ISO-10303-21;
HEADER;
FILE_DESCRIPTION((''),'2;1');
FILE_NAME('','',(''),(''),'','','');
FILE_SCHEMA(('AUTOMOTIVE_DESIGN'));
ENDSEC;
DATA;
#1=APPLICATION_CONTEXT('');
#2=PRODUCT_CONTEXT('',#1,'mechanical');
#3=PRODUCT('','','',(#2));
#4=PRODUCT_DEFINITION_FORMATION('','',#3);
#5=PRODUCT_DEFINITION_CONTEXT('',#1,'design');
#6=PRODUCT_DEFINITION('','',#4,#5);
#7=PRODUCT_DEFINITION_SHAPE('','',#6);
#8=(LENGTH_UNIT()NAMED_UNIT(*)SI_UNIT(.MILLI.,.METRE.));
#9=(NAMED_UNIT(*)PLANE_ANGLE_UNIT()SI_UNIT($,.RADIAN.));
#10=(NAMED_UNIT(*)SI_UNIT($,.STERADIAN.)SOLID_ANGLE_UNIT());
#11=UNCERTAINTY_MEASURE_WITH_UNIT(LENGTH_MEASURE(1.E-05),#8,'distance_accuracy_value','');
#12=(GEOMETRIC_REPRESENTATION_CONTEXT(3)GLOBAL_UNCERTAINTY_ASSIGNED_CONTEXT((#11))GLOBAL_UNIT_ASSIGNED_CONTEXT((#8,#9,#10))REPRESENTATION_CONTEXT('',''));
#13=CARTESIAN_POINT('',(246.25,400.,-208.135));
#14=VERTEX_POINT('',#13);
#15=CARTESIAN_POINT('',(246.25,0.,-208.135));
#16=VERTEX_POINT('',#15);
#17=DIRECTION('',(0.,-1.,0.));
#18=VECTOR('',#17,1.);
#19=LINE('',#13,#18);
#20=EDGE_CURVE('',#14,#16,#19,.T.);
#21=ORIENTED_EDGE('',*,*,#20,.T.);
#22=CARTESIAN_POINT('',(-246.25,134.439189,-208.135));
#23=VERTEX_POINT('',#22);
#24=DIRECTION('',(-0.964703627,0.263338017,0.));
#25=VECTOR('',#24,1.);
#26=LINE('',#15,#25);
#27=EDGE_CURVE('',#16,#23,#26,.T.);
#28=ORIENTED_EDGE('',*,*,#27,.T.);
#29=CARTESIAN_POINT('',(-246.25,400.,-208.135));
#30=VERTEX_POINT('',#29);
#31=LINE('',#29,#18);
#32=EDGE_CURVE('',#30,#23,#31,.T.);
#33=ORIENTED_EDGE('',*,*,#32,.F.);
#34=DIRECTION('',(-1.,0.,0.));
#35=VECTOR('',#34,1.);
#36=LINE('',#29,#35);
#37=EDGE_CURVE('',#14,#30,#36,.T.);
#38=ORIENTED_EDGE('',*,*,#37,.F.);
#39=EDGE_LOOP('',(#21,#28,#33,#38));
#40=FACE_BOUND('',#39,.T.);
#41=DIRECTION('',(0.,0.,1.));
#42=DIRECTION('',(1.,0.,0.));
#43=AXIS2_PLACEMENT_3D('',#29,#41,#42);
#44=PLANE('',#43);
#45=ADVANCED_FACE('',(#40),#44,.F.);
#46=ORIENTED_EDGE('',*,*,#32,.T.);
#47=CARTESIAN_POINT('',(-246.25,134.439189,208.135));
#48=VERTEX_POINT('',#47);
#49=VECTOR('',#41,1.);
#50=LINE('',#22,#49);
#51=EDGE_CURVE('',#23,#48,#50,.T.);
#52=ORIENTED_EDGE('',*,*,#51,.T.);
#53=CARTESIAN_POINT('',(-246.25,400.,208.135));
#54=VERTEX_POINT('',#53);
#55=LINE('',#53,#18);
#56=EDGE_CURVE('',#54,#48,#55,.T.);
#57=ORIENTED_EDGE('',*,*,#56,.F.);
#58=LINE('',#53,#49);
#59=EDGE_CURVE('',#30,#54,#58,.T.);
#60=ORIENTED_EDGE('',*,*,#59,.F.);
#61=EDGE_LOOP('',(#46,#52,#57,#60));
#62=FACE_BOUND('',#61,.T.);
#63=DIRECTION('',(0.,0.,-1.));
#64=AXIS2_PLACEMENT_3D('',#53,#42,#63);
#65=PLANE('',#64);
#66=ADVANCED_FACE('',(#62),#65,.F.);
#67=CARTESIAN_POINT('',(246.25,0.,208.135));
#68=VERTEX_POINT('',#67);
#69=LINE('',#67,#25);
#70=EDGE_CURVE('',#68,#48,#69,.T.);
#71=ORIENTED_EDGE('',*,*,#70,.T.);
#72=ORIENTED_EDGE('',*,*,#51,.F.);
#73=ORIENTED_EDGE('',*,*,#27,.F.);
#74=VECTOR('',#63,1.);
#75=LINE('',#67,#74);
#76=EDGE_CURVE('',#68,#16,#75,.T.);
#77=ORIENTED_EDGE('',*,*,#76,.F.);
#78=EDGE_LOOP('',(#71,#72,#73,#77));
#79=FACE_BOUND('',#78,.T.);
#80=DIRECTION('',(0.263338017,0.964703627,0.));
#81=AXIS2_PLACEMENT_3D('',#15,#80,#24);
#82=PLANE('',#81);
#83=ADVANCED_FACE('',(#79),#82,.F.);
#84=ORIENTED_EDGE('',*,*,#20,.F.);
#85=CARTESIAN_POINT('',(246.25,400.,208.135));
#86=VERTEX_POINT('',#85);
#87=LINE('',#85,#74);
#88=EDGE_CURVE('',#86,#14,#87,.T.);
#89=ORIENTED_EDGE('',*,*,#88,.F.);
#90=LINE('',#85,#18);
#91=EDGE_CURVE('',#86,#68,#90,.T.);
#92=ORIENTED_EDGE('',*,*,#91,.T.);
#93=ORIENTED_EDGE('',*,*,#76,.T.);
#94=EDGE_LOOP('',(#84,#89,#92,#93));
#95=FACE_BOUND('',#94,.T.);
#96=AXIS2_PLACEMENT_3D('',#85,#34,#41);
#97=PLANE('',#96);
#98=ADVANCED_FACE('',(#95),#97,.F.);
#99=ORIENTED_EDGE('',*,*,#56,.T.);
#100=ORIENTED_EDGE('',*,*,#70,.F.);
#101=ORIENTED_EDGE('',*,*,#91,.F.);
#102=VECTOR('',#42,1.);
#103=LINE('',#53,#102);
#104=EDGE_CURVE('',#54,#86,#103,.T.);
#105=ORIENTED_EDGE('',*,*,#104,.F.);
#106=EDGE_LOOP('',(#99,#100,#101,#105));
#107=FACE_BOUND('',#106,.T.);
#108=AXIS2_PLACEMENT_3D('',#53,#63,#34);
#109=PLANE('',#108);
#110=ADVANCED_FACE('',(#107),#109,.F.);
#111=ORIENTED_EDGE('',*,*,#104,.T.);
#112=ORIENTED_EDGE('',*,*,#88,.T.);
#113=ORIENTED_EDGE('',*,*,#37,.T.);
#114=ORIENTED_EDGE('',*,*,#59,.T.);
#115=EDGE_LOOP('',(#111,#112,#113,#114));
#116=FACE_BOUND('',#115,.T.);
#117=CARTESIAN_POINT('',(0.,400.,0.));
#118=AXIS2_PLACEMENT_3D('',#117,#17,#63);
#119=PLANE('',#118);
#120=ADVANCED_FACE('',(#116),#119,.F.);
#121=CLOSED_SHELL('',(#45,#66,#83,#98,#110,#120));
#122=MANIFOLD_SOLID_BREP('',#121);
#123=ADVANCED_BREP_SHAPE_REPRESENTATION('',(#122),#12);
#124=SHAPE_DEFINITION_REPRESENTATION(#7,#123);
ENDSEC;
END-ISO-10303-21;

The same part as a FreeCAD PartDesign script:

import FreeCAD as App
import Part
import Sketcher
from FreeCAD import Vector

doc = App.newDocument("Part")
body = doc.addObject("PartDesign::Body", "Body")

# Sketch on XZ plane
sketch1 = doc.addObject("Sketcher::SketchObject", "Sketch")
body.addObject(sketch1)
sketch1.AttachmentSupport = (doc.XZ_Plane, [""])
sketch1.MapMode = "FlatFace"
sketch1.addGeometry([
    Part.LineSegment(Vector(-246.25, -208.135, 0), Vector(-246.25, 208.135, 0)),
    Part.LineSegment(Vector(-246.25, 208.135, 0), Vector(246.25, 208.135, 0)),
    Part.LineSegment(Vector(246.25, 208.135, 0), Vector(246.25, -208.135, 0)),
    Part.LineSegment(Vector(246.25, -208.135, 0), Vector(-246.25, -208.135, 0)),
], False)
sketch1.addConstraint([
    Sketcher.Constraint("Coincident", 0, 2, 1, 1),
    Sketcher.Constraint("Coincident", 1, 2, 2, 1),
    Sketcher.Constraint("Coincident", 2, 2, 3, 1),
    Sketcher.Constraint("Coincident", 3, 2, 0, 1),
    Sketcher.Constraint("Vertical", 0),
    Sketcher.Constraint("Horizontal", 1),
    Sketcher.Constraint("Vertical", 2),
    Sketcher.Constraint("Horizontal", 3),
    Sketcher.Constraint("Symmetric", 0, 2, 2, 2, -1, 1),
    Sketcher.Constraint("DistanceX", 1, 1, 1, 2, 492.5),
    Sketcher.Constraint("DistanceY", 0, 1, 0, 2, 416.27),
])
pad1 = doc.addObject("PartDesign::Pad", "Pad")
body.addObject(pad1)
pad1.Profile = sketch1
pad1.Length = 400
pad1.Reversed = True

# Sketch on XY plane
sketch2 = doc.addObject("Sketcher::SketchObject", "Sketch001")
body.addObject(sketch2)
sketch2.AttachmentSupport = (doc.XY_Plane, [""])
sketch2.MapMode = "FlatFace"
sketch2.AttachmentOffset = App.Placement(Vector(0, 0, 208.135), App.Rotation())
sketch2.addGeometry([
    Part.LineSegment(Vector(246.25, 0, 0), Vector(-246.25, 134.439189, 0)),
    Part.LineSegment(Vector(-246.25, 134.439189, 0), Vector(-246.25, 0, 0)),
    Part.LineSegment(Vector(-246.25, 0, 0), Vector(246.25, 0, 0)),
], False)
sketch2.addConstraint([
    Sketcher.Constraint("Coincident", 0, 2, 1, 1),
    Sketcher.Constraint("Coincident", 1, 2, 2, 1),
    Sketcher.Constraint("Coincident", 2, 2, 0, 1),
    Sketcher.Constraint("Vertical", 1),
    Sketcher.Constraint("Horizontal", 2),
    Sketcher.Constraint("Symmetric", 1, 2, 2, 2, -1, 1),
    Sketcher.Constraint("DistanceX", 2, 1, 2, 2, 492.5),
    Sketcher.Constraint("DistanceY", 1, 2, 1, 1, 134.439189),
])
pocket1 = doc.addObject("PartDesign::Pocket", "Pocket")
body.addObject(pocket1)
pocket1.Profile = sketch2
pocket1.Type = "ThroughAll"

doc.recompute()
